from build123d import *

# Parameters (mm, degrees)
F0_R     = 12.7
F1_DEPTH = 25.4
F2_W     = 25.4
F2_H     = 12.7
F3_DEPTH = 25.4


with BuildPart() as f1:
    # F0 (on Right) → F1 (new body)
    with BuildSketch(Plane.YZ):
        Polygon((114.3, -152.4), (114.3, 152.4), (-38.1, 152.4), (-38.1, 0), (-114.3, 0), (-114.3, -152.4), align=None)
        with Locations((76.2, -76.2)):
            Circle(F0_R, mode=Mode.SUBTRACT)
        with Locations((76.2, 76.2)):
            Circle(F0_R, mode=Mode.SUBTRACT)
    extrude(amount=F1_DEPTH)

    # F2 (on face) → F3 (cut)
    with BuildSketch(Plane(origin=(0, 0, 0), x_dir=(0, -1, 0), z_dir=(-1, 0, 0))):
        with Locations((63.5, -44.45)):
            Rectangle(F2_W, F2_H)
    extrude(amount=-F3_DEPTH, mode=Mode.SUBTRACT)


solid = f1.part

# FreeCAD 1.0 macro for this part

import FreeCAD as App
import Part
import Sketcher
Q = App.Units.Quantity


def add_polygon(sketch, points):
    """Adds a closed chain of lines whose ends are joined by coincident constraints."""
    first, n = sketch.GeometryCount, len(points)
    for a, b in zip(points, points[1:] + points[:1]):
        sketch.addGeometry(Part.LineSegment(App.Vector(*a, 0), App.Vector(*b, 0)), False)
    for i in range(n):
        sketch.addConstraint(Sketcher.Constraint("Coincident", first + i, 2, first + (i + 1) % n, 1))

doc = App.newDocument("Part")
body = doc.addObject("PartDesign::Body", "Body")

sketch1 = doc.addObject("Sketcher::SketchObject", "Sketch")
body.addObject(sketch1)
sketch1.AttachmentSupport = (doc.YZ_Plane, [""])
sketch1.MapMode = "FlatFace"
add_polygon(sketch1, [(114, -152), (114, 152), (-38, 152), (-38, 0), (-114, 0), (-114, -152)])
sketch1.addGeometry(Part.Circle(App.Vector(76, -76, 0), App.Vector(0, 0, 1), 13), False)
sketch1.addGeometry(Part.Circle(App.Vector(76, 76, 0), App.Vector(0, 0, 1), 13), False)
sketch1.addConstraint([
    Sketcher.Constraint("Vertical", 0),
    Sketcher.Constraint("Horizontal", 1),
    Sketcher.Constraint("Vertical", 2),
    Sketcher.Constraint("Horizontal", 3),
    Sketcher.Constraint("Vertical", 4),
    Sketcher.Constraint("Horizontal", 5),
    Sketcher.Constraint("Equal", 6, 7),
    Sketcher.Constraint("Symmetric", 0, 2, 4, 2, -1, 1),
    Sketcher.Constraint("Symmetric", 6, 3, 7, 3, -1),
    Sketcher.Constraint("PointOnObject", 2, 2, -1),
    Sketcher.Constraint("Equal", 1, 2),
    Sketcher.Constraint("Diameter", 6, Q("1 in")),
    Sketcher.Constraint("DistanceX", 1, 2, 1, 1, Q("6 in")),
    Sketcher.Constraint("DistanceX", 3, 2, 3, 1, Q("3 in")),
    Sketcher.Constraint("DistanceX", -1, 1, 6, 3, Q("3 in")),
    Sketcher.Constraint("DistanceY", 6, 3, -1, 1, Q("3 in")),
])
pad1 = doc.addObject("PartDesign::Pad", "Pad")
body.addObject(pad1)
pad1.Profile = sketch1
pad1.Length = Q("1 in")

sketch2 = doc.addObject("Sketcher::SketchObject", "Sketch001")
body.addObject(sketch2)
sketch2.AttachmentSupport = (doc.YZ_Plane, [""])
sketch2.MapMode = "FlatFace"
add_polygon(sketch2, [(-51, -38), (-51, -51), (-76, -51), (-76, -38)])
sketch2.addConstraint([
    Sketcher.Constraint("Vertical", 0),
    Sketcher.Constraint("Horizontal", 1),
    Sketcher.Constraint("Vertical", 2),
    Sketcher.Constraint("Horizontal", 3),
    Sketcher.Constraint("DistanceX", 1, 2, 1, 1, Q("1 in")),
    Sketcher.Constraint("DistanceY", 0, 2, 0, 1, Q("0.5 in")),
    Sketcher.Constraint("DistanceX", 0, 2, -1, 1, Q("2 in")),
    Sketcher.Constraint("DistanceY", 0, 2, -1, 1, Q("2 in")),
])
pocket1 = doc.addObject("PartDesign::Pocket", "Pocket")
body.addObject(pocket1)
pocket1.Profile = sketch2
pocket1.Length = Q("1 in")
pocket1.Reversed = True

doc.recompute()
